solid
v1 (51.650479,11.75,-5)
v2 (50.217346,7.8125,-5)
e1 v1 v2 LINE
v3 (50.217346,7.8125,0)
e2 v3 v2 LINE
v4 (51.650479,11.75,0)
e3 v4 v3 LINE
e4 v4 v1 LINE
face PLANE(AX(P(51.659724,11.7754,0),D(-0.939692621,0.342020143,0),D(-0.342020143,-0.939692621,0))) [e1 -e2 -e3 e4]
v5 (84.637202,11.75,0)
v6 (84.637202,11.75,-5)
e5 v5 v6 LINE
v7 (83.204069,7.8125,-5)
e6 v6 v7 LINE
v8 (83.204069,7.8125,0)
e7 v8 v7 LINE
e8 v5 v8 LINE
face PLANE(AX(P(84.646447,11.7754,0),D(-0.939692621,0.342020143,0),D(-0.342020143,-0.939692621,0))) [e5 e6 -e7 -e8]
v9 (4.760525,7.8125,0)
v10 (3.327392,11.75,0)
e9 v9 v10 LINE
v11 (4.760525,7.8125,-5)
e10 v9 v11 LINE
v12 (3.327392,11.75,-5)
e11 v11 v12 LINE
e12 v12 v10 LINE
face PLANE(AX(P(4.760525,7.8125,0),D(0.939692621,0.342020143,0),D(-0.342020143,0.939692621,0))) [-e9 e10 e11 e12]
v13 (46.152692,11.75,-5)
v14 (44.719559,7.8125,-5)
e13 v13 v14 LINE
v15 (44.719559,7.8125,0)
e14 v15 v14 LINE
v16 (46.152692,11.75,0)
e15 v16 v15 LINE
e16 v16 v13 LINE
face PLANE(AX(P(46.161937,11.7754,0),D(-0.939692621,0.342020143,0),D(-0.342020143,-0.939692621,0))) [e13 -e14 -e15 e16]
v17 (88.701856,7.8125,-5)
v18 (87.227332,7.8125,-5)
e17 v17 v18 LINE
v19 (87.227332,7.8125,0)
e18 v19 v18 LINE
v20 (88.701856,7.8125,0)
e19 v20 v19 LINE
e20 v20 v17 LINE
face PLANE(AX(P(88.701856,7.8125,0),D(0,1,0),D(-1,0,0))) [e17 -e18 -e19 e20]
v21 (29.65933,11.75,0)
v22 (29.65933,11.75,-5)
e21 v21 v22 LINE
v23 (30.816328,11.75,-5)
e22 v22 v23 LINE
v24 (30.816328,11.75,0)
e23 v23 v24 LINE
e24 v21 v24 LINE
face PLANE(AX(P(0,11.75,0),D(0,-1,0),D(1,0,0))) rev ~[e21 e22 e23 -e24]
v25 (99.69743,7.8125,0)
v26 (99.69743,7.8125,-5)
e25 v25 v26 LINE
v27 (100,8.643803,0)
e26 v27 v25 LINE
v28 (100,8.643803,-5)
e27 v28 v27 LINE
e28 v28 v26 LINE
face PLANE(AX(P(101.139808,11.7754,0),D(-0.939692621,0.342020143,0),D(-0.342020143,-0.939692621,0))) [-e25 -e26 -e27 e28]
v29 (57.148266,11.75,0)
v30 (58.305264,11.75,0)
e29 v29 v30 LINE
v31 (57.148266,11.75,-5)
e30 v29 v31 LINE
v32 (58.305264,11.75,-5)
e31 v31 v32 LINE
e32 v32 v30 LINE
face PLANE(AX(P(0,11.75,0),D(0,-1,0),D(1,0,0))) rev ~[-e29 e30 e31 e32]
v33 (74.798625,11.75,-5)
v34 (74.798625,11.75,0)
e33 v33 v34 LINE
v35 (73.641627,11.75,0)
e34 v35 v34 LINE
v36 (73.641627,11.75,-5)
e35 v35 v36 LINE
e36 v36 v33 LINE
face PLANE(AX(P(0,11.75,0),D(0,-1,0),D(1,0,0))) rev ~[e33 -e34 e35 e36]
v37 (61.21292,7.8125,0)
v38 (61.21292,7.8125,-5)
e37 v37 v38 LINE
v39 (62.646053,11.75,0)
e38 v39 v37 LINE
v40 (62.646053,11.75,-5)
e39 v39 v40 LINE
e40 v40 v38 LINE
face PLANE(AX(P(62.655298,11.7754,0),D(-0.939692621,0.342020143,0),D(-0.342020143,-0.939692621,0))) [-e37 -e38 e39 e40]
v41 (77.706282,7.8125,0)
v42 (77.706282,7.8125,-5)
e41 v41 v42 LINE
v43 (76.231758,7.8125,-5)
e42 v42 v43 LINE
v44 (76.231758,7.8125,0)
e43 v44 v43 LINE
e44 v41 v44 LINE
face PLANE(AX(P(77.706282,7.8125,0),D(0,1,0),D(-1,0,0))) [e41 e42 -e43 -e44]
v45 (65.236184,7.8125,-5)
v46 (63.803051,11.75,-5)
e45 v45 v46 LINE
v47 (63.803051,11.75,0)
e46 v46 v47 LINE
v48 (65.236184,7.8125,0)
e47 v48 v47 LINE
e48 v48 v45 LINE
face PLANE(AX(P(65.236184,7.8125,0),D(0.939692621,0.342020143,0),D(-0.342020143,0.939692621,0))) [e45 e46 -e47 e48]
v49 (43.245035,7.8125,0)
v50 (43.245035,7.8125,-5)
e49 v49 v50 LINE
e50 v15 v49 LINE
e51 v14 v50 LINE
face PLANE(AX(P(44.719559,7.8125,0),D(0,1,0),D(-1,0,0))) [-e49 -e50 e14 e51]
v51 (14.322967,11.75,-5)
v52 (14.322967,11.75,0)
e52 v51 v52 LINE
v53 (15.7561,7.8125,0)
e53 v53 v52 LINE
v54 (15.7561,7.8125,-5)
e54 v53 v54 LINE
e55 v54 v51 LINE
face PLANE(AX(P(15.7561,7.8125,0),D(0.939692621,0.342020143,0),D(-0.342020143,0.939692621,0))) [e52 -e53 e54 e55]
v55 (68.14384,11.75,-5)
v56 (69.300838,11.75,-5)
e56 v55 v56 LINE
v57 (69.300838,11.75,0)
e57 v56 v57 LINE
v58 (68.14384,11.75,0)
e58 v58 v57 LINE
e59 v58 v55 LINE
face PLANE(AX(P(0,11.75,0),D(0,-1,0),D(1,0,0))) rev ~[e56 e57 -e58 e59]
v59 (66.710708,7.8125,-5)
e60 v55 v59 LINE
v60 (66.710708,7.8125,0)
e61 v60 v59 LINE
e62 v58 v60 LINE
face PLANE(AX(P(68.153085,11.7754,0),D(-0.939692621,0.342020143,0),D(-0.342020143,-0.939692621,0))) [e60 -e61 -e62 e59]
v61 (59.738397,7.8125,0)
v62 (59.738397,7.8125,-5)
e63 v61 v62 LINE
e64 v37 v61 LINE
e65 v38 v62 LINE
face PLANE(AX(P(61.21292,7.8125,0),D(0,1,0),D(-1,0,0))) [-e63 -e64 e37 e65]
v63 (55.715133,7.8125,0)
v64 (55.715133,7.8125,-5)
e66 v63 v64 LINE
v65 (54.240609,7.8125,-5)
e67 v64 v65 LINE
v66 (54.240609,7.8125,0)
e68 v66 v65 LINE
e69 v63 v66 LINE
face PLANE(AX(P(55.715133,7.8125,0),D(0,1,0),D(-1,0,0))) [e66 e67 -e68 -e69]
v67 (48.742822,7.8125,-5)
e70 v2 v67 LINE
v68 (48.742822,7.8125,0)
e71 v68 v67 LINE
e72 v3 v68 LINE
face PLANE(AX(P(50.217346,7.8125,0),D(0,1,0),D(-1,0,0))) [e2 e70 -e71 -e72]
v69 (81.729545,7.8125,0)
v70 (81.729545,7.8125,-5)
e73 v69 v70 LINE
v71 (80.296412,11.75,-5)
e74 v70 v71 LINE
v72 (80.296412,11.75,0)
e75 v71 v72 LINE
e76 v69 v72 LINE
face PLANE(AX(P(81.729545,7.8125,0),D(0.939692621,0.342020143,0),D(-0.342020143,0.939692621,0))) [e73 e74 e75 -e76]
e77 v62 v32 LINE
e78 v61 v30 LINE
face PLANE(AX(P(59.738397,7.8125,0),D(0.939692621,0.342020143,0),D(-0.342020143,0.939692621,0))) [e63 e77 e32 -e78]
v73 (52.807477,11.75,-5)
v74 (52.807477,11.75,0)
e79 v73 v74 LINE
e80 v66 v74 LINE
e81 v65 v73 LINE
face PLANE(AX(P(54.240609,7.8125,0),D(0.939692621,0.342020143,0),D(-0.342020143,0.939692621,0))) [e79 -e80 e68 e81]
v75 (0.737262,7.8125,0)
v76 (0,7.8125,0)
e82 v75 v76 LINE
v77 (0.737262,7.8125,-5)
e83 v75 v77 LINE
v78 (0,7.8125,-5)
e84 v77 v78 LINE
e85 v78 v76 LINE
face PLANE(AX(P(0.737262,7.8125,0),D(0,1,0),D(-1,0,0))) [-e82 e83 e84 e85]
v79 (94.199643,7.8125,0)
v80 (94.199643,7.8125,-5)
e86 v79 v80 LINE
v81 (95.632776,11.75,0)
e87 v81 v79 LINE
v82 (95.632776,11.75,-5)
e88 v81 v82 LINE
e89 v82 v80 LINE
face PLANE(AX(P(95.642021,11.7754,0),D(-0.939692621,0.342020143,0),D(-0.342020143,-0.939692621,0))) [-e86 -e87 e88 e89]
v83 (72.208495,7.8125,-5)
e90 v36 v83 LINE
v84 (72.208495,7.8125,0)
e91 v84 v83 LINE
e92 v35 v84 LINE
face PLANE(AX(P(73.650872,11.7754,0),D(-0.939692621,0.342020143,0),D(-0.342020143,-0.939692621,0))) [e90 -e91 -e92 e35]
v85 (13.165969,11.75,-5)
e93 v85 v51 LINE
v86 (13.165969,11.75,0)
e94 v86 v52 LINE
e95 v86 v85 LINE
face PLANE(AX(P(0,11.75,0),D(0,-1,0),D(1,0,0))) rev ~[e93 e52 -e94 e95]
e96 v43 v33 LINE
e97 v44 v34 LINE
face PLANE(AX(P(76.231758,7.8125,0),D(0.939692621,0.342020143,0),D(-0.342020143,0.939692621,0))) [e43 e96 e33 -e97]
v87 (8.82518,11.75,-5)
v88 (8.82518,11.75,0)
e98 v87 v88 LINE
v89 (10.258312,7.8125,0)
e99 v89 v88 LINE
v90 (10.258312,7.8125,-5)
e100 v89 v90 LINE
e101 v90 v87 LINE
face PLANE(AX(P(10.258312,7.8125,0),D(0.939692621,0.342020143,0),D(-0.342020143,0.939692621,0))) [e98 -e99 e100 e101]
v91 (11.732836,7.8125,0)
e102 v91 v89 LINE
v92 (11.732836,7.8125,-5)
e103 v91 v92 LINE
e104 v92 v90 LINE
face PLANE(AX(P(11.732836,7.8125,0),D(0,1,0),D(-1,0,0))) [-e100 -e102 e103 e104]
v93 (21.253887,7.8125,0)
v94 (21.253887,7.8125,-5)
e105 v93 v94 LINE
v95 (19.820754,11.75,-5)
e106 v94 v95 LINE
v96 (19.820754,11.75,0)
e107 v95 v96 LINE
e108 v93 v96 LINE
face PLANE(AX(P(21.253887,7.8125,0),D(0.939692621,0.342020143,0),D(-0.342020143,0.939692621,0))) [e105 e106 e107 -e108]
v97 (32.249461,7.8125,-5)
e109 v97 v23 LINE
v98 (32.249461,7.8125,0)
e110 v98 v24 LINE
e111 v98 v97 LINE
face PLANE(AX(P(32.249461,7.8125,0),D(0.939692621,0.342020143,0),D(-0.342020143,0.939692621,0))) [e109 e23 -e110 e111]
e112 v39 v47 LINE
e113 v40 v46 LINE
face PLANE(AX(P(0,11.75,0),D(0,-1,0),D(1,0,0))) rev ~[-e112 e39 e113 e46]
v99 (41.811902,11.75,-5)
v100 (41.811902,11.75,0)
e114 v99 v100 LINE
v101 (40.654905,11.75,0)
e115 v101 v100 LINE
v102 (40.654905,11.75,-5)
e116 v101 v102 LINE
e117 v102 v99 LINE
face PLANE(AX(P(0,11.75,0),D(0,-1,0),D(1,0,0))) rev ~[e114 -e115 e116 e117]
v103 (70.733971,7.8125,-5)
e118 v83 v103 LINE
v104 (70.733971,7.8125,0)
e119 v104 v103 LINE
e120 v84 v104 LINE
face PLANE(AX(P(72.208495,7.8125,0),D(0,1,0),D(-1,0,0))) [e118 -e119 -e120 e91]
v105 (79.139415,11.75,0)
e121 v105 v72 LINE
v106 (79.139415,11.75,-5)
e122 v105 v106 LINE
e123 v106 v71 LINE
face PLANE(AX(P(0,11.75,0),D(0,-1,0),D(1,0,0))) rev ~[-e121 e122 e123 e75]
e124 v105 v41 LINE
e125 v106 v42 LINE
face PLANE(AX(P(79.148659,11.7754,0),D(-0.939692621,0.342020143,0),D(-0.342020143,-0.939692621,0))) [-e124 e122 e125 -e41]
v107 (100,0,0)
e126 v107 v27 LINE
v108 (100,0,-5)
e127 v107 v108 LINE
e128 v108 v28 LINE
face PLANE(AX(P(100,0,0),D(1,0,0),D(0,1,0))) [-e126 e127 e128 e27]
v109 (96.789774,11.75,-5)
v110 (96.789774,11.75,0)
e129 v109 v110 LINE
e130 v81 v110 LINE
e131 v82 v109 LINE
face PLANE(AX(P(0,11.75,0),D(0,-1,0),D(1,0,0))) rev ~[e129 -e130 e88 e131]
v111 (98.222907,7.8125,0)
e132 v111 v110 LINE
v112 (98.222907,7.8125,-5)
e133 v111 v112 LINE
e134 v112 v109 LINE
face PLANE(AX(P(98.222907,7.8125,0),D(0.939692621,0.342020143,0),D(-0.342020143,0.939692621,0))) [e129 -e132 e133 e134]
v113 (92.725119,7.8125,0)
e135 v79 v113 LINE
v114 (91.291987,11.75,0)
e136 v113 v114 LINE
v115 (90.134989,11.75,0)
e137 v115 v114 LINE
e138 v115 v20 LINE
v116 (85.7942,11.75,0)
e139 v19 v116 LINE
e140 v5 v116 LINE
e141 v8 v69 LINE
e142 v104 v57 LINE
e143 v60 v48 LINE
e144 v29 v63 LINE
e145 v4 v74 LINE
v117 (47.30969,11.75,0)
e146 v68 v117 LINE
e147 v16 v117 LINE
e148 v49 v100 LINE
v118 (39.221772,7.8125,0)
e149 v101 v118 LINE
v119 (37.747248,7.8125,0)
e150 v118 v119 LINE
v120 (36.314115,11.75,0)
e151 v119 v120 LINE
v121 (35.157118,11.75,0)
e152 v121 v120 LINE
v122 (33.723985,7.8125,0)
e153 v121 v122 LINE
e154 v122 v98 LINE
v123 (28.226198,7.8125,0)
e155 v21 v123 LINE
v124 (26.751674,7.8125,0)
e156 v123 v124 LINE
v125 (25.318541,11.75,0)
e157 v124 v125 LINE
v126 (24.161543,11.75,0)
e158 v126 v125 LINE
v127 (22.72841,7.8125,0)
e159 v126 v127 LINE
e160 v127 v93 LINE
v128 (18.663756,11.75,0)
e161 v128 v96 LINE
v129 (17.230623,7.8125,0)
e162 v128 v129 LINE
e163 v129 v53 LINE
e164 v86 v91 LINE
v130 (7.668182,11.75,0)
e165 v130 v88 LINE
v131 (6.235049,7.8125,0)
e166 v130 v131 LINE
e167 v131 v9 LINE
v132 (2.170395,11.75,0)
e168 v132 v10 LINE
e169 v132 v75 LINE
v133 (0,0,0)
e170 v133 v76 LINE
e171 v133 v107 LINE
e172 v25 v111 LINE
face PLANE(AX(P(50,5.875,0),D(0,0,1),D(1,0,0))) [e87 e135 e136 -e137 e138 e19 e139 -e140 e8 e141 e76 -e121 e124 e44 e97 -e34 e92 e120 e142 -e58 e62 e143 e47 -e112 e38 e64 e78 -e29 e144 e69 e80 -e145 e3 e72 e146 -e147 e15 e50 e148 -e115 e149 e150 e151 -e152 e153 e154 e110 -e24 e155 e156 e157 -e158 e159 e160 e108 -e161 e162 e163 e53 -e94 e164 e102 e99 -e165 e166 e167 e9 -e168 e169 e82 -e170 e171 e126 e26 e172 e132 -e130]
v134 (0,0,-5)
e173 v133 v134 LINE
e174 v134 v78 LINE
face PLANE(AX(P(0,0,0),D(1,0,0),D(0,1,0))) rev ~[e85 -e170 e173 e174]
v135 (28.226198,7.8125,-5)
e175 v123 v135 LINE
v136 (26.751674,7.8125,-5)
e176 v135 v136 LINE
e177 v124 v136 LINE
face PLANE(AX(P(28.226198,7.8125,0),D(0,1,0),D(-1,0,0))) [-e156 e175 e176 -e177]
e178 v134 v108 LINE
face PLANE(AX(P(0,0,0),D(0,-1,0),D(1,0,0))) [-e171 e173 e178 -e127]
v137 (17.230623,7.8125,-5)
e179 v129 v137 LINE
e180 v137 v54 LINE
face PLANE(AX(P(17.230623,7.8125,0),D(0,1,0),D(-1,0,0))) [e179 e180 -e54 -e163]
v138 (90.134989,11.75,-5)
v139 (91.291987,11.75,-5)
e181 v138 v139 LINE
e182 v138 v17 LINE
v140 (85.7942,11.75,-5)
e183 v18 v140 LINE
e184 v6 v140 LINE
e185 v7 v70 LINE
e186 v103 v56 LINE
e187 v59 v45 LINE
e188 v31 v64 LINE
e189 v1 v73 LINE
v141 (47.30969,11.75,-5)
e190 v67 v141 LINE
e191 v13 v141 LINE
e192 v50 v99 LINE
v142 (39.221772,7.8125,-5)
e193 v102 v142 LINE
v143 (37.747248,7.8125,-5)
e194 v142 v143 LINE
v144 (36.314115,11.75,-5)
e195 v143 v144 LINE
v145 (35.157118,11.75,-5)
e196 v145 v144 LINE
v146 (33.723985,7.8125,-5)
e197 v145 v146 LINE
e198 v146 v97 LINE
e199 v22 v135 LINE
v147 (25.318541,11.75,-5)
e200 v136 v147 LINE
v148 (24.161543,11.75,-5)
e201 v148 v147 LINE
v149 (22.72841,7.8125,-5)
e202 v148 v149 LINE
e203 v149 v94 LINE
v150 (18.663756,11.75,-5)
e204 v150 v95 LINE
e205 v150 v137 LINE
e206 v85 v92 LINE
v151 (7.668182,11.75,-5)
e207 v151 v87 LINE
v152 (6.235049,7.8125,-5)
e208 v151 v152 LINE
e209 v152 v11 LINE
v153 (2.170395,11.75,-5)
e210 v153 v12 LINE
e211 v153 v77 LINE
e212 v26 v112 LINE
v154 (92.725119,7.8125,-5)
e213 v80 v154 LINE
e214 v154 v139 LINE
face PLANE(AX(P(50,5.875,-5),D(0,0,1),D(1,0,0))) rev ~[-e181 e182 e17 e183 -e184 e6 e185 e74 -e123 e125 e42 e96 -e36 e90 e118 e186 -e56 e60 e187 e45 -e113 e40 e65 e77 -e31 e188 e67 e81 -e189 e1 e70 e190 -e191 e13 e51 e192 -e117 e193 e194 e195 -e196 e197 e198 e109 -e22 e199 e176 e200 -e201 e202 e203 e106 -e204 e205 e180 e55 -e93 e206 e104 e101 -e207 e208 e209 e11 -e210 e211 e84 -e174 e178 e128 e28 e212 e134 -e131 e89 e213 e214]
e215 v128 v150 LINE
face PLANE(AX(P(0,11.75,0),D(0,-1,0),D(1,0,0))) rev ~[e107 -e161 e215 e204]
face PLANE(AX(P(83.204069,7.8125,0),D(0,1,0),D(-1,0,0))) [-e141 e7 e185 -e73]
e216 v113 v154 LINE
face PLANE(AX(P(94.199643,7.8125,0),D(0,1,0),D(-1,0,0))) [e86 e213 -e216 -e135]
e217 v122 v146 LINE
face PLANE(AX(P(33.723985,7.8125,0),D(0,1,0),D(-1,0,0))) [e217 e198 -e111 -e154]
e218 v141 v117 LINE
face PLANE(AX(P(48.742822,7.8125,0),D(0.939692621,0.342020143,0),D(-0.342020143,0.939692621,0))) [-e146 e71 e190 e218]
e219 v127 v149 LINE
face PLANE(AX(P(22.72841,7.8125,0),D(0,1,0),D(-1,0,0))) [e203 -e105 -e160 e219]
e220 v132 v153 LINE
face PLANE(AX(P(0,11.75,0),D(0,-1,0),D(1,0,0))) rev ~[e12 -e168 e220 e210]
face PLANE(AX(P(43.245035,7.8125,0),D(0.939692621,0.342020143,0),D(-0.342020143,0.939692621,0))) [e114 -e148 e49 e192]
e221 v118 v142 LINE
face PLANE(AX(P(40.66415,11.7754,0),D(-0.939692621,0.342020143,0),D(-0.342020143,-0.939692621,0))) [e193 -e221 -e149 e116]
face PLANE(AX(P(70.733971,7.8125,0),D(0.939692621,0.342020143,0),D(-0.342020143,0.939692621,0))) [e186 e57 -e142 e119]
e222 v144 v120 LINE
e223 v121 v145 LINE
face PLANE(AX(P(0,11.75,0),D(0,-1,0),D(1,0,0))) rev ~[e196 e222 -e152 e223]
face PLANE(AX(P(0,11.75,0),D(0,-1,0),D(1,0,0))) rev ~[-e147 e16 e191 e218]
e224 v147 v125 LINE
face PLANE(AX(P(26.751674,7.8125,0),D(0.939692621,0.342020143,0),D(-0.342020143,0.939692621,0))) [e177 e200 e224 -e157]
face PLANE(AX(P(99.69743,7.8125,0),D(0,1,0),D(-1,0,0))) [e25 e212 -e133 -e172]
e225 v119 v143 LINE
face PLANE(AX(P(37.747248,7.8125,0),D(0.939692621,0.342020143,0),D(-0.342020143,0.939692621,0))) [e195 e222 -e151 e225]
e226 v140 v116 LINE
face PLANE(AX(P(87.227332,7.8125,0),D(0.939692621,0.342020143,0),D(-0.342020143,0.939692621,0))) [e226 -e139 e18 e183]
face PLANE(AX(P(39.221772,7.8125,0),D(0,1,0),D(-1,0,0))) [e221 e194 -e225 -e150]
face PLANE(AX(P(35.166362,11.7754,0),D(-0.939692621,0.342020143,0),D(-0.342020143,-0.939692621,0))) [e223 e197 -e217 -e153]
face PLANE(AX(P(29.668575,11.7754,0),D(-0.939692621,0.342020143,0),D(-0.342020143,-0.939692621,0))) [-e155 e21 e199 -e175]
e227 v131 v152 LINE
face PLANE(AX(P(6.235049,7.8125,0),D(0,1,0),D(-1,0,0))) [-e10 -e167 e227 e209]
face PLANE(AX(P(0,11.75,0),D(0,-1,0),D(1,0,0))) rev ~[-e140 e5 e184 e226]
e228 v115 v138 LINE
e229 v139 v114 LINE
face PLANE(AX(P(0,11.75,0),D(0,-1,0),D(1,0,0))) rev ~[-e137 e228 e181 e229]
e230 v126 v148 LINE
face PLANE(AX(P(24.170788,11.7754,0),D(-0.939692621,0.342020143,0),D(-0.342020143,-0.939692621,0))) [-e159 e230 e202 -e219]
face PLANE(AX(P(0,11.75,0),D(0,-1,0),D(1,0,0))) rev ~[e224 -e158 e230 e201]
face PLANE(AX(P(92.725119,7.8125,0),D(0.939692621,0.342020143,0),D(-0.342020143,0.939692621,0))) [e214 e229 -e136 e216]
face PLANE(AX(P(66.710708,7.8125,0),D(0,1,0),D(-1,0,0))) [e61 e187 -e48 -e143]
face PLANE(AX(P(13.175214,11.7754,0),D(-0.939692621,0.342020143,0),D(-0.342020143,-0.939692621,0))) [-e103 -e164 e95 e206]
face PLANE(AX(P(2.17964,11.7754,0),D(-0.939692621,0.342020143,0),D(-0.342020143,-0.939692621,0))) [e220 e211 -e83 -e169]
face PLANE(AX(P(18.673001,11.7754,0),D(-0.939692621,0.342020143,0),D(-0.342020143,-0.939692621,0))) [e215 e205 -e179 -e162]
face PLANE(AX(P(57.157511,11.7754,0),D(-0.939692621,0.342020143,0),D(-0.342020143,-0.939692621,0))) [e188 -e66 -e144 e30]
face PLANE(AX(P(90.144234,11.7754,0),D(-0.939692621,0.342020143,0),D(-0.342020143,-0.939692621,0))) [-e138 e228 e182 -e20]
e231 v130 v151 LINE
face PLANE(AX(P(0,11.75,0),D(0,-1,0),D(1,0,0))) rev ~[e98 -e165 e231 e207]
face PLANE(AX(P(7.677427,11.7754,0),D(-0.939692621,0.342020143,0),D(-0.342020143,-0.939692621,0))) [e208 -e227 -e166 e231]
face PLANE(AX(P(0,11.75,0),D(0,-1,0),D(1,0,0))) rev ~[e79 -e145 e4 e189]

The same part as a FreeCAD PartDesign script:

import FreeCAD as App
import Part
import Sketcher
Q = App.Units.Quantity


def add_polygon(sketch, points):
    """Adds a closed chain of lines whose ends are joined by coincident constraints."""
    first, n = sketch.GeometryCount, len(points)
    for a, b in zip(points, points[1:] + points[:1]):
        sketch.addGeometry(Part.LineSegment(App.Vector(*a, 0), App.Vector(*b, 0)), False)
    for i in range(n):
        sketch.addConstraint(Sketcher.Constraint("Coincident", first + i, 2, first + (i + 1) % n, 1))

doc = App.newDocument("Part")
body = doc.addObject("PartDesign::Body", "Body")

# Sketch on XY plane
sketch1 = body.newObject("Sketcher::SketchObject", "Sketch")
sketch1.AttachmentSupport = (doc.getObject("XY_Plane"), [""])
sketch1.MapMode = "FlatFace"
add_polygon(sketch1, [(0, 12), (0, 0), (100, 0), (100, 12)])  # lines 0-3
sketch1.addConstraint(Sketcher.Constraint("Vertical", 0))
sketch1.addConstraint(Sketcher.Constraint("Horizontal", 1))
sketch1.addConstraint(Sketcher.Constraint("Vertical", 2))
sketch1.addConstraint(Sketcher.Constraint("Horizontal", 3))
sketch1.addConstraint(Sketcher.Constraint("Coincident", 0, 2, -1, 1))
sketch1.addConstraint(Sketcher.Constraint("DistanceX", 1, 1, 1, 2, Q("100 mm")))
sketch1.addConstraint(Sketcher.Constraint("DistanceY", 0, 2, 0, 1, Q("11.75 mm")))
pad1 = body.newObject("PartDesign::Pad", "Pad")
pad1.Profile = sketch1
pad1.Length = 5
pad1.Reversed = True

# Sketch on XY plane
sketch2 = body.newObject("Sketcher::SketchObject", "Sketch001")
sketch2.AttachmentSupport = (doc.getObject("XY_Plane"), [""])
sketch2.MapMode = "FlatFace"
add_polygon(sketch2, [(-0.7, 7.8), (0.7, 7.8), (2.2, 11.8), (-2.2, 11.8)])  # lines 0-3
sketch2.addConstraint(Sketcher.Constraint("Horizontal", 0))
sketch2.addConstraint(Sketcher.Constraint("Horizontal", 2))
sketch2.addConstraint(Sketcher.Constraint("Equal", 1, 3))
sketch2.addConstraint(Sketcher.Constraint("Angle", 1, Q("70 deg")))
sketch2.addConstraint(Sketcher.Constraint("DistanceX", 2, 2, 2, 1, Q("4.359279 mm")))
sketch2.addConstraint(Sketcher.Constraint("DistanceY", -1, 1, 0, 2, Q("7.8125 mm")))
sketch2.addConstraint(Sketcher.Constraint("DistanceY", -1, 1, 1, 2, Q("11.7754 mm")))
sketch2.addConstraint(Sketcher.Constraint("DistanceX", -1, 1, 0, 2, Q("0.737262 mm")))
pocket1 = body.newObject("PartDesign::Pocket", "Pocket")
pocket1.Profile = sketch2
pocket1.Type = "ThroughAll"
doc.recompute()

linearpattern = body.newObject("PartDesign::LinearPattern", "LinearPattern")
linearpattern.Originals = [pocket1]
linearpattern.Direction = (doc.getObject("X_Axis"), [""])
linearpattern.Mode = "offset"
linearpattern.Offset = 5.497787
linearpattern.Occurrences = 19
body.Tip = linearpattern

doc.recompute()
